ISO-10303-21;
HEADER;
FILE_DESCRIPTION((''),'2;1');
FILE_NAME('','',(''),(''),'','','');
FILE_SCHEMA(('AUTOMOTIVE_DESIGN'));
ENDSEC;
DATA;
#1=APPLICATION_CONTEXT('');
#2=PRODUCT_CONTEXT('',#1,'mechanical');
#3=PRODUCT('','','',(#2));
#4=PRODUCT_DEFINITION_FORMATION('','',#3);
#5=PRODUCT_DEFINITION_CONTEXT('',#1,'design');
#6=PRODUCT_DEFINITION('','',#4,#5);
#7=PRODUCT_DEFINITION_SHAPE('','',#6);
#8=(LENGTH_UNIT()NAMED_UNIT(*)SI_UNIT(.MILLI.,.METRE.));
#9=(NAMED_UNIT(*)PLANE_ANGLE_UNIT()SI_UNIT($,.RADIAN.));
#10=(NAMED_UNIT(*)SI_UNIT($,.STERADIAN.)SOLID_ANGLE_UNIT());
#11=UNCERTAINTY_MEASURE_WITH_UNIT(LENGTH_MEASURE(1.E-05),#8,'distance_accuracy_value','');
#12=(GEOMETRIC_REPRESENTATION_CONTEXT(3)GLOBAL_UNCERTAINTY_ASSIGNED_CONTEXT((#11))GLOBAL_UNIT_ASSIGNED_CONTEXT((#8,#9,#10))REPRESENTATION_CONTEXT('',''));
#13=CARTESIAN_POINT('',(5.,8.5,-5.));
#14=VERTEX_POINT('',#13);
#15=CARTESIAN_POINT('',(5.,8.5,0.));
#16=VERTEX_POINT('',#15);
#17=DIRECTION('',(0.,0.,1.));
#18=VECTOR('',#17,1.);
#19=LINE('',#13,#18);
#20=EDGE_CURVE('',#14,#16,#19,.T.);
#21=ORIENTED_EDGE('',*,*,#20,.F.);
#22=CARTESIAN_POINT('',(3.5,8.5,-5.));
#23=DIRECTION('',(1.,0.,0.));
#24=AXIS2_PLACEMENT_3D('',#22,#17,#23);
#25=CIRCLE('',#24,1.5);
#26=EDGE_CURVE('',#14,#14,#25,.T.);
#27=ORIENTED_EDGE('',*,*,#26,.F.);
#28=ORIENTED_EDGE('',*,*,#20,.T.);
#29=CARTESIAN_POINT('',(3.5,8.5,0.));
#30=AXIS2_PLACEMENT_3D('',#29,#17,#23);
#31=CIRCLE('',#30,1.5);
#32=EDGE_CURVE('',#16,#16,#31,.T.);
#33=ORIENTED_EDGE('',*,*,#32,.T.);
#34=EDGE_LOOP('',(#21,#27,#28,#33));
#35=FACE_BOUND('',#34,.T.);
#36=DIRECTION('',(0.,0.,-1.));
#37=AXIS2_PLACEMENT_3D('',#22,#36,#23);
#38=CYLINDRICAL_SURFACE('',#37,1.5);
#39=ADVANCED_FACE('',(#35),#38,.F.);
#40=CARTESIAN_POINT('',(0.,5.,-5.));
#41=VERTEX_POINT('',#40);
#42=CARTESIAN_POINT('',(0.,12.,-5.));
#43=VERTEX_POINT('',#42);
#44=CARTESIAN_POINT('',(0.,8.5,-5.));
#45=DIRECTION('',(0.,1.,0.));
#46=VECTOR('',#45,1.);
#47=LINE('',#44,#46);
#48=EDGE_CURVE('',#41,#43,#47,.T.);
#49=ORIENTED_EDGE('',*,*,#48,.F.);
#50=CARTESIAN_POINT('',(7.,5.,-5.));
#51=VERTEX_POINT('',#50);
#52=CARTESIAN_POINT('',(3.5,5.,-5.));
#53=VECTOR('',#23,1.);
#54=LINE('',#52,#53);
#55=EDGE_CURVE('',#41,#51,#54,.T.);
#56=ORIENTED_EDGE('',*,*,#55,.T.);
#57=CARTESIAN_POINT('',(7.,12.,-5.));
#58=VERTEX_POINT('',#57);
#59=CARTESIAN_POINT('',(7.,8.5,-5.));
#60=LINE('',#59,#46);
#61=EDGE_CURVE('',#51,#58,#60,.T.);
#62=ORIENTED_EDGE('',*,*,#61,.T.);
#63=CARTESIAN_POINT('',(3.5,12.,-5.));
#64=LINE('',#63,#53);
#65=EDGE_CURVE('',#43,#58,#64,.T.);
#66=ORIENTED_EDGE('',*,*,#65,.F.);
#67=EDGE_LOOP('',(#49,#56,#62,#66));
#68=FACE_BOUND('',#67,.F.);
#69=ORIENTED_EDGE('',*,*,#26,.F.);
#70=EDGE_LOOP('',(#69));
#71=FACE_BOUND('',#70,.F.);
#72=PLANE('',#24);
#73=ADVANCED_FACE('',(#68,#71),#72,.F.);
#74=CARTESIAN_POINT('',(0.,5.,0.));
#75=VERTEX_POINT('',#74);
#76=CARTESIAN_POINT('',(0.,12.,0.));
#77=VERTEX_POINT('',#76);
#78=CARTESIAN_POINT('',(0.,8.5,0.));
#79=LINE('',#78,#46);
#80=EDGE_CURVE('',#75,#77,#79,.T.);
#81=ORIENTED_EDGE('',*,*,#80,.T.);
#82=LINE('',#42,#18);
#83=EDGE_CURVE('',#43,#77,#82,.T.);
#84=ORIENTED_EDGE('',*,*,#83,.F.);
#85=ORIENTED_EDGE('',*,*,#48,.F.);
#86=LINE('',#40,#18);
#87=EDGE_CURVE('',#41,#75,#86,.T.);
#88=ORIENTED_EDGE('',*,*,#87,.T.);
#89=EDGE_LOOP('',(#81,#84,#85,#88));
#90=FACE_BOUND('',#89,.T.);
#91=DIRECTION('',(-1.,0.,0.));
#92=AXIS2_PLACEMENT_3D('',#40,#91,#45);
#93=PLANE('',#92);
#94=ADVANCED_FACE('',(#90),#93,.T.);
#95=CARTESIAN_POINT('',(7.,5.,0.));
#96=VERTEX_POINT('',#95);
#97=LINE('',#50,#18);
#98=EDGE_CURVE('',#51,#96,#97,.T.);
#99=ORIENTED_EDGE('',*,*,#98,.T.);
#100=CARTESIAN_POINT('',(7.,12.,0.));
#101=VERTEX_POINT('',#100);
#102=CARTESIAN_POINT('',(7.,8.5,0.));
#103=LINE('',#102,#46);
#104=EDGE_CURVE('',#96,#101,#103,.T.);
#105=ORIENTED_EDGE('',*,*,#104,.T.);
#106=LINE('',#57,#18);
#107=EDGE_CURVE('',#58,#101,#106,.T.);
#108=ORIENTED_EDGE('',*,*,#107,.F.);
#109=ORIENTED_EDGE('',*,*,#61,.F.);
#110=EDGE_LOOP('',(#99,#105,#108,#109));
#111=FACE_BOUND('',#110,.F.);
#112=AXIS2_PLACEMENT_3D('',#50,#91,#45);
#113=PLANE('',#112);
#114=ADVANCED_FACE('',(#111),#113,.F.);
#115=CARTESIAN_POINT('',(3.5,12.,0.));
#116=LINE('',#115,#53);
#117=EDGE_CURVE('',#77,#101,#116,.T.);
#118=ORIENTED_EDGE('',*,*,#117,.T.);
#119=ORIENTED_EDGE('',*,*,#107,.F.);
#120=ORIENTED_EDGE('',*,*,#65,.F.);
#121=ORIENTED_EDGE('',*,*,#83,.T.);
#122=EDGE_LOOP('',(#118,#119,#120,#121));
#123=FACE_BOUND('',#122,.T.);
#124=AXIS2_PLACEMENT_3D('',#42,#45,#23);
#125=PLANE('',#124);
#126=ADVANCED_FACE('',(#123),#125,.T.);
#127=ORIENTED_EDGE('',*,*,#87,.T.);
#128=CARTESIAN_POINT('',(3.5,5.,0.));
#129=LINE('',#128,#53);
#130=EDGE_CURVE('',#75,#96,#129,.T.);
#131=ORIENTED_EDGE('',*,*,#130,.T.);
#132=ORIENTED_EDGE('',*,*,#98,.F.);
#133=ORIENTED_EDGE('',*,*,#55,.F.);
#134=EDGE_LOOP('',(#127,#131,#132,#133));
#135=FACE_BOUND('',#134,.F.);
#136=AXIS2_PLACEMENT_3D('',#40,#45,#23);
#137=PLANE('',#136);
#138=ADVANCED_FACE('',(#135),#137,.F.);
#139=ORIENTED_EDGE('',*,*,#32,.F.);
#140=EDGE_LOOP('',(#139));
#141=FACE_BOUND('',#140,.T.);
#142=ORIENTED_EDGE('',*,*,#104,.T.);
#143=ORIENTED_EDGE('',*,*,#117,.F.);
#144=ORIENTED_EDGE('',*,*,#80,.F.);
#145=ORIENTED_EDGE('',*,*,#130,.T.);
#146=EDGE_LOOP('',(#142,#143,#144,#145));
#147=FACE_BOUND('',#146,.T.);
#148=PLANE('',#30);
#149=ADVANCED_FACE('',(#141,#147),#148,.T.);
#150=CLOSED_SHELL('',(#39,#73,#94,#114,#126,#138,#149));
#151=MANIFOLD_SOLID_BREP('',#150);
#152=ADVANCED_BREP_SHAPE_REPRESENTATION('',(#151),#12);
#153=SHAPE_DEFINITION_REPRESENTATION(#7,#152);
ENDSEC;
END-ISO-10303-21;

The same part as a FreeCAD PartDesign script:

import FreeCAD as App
import Part
import Sketcher

doc = App.newDocument("Part")
body = doc.addObject("PartDesign::Body", "Body")

# Sketch on XY plane
sketch1 = body.newObject("Sketcher::SketchObject", "Sketch")
sketch1.AttachmentSupport = (doc.getObject("XY_Plane"), [""])
sketch1.MapMode = "FlatFace"
sketch1.AttachmentOffset = App.Placement(App.Vector(0, 0, -5), App.Rotation())
sketch1.addGeometry(Part.Circle(App.Vector(3.5, 8.5, 0), App.Vector(0, 0, 1), 1.5), False)
sketch1.addConstraint([
    Sketcher.Constraint("Diameter", 0, 3.0),
    Sketcher.Constraint("DistanceX", -1, 1, 0, 3, 3.5),
    Sketcher.Constraint("DistanceY", -1, 1, 0, 3, 8.5),
])
pad1 = body.newObject("PartDesign::Pad", "Pad")
pad1.Profile = sketch1
pad1.Length = 5
body2 = doc.addObject("PartDesign::Body", "Body001")

# Sketch on XY plane
sketch2 = body2.newObject("Sketcher::SketchObject", "Sketch001")
sketch2.AttachmentSupport = (doc.getObject("XY_Plane001"), [""])
sketch2.MapMode = "FlatFace"
sketch2.AttachmentOffset = App.Placement(App.Vector(0, 0, -5), App.Rotation())
sketch2.addGeometry([
    Part.LineSegment(App.Vector(0, 12, 0), App.Vector(0, 5, 0)),
    Part.LineSegment(App.Vector(0, 5, 0), App.Vector(7, 5, 0)),
    Part.LineSegment(App.Vector(7, 5, 0), App.Vector(7, 12, 0)),
    Part.LineSegment(App.Vector(7, 12, 0), App.Vector(0, 12, 0)),
], False)
sketch2.addConstraint([
    Sketcher.Constraint("Coincident", 0, 2, 1, 1),
    Sketcher.Constraint("Coincident", 1, 2, 2, 1),
    Sketcher.Constraint("Coincident", 2, 2, 3, 1),
    Sketcher.Constraint("Coincident", 3, 2, 0, 1),
    Sketcher.Constraint("Vertical", 0),
    Sketcher.Constraint("Horizontal", 1),
    Sketcher.Constraint("Vertical", 2),
    Sketcher.Constraint("Horizontal", 3),
    Sketcher.Constraint("PointOnObject", 0, 2, -2),
    Sketcher.Constraint("Equal", 3, 0),
    Sketcher.Constraint("DistanceX", 1, 1, 1, 2, 7.0),
    Sketcher.Constraint("DistanceY", -1, 1, 0, 2, 5.0),
])
pad2 = body2.newObject("PartDesign::Pad", "Pad001")
pad2.Profile = sketch2
pad2.Length = 5
doc.recompute()

boolean = body2.newObject("PartDesign::Boolean", "Boolean")
boolean.Type = "Cut"
boolean.addObjects([body])

doc.recompute()
